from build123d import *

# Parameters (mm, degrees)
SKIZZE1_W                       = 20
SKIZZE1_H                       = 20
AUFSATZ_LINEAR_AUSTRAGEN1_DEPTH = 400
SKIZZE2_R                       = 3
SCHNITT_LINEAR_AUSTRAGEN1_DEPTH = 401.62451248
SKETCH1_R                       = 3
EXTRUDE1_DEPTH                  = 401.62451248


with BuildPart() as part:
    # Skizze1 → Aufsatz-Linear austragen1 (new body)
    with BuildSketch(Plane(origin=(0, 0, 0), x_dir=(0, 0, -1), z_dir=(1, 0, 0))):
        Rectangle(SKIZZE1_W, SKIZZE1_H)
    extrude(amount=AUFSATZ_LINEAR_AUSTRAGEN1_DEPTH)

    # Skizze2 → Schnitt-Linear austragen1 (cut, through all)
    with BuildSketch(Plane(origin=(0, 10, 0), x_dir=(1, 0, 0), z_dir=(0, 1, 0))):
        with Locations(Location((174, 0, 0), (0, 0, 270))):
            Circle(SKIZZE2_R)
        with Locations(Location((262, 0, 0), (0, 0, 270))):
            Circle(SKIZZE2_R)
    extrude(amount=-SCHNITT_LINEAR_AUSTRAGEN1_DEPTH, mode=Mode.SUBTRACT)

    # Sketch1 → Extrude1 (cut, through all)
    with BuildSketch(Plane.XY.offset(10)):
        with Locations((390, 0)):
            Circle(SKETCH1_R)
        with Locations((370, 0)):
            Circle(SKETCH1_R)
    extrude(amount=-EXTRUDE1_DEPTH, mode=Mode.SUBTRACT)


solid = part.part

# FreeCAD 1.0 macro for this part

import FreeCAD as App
import Part
import Sketcher

V = App.Vector


def add_polygon(sketch, points):
    """Adds a closed chain of lines whose ends are joined by coincident constraints."""
    first, n = sketch.GeometryCount, len(points)
    for a, b in zip(points, points[1:] + points[:1]):
        sketch.addGeometry(Part.LineSegment(App.Vector(*a, 0), App.Vector(*b, 0)), False)
    for i in range(n):
        sketch.addConstraint(Sketcher.Constraint("Coincident", first + i, 2, first + (i + 1) % n, 1))

doc = App.newDocument("Part")
body = doc.addObject("PartDesign::Body", "Body")

# Sketch on YZ plane
sketch1 = body.newObject("Sketcher::SketchObject", "Sketch")
sketch1.AttachmentSupport = (doc.getObject("YZ_Plane"), [""])
sketch1.MapMode = "FlatFace"
add_polygon(sketch1, [(10, 10), (-10, 10), (-10, -10), (10, -10)])  # lines 0-3
sketch1.addConstraint([
    Sketcher.Constraint("Horizontal", 0),
    Sketcher.Constraint("Vertical", 1),
    Sketcher.Constraint("Horizontal", 2),
    Sketcher.Constraint("Vertical", 3),
    Sketcher.Constraint("Symmetric", 0, 2, 2, 2, -1, 1),
    Sketcher.Constraint("Equal", 2, 1),
    Sketcher.Constraint("DistanceX", 0, 2, 0, 1, 20.0),
])
pad1 = body.newObject("PartDesign::Pad", "Pad")
pad1.Profile = sketch1
pad1.Length = 400

# Sketch on XZ plane
sketch2 = body.newObject("Sketcher::SketchObject", "Sketch001")
sketch2.AttachmentSupport = (doc.getObject("XZ_Plane"), [""])
sketch2.MapMode = "FlatFace"
sketch2.AttachmentOffset = App.Placement(V(0, 0, -10), App.Rotation())
sketch2.addGeometry([
    Part.Circle(V(174, 0, 0), V(0, 0, 1), 3),
    Part.Circle(V(262, 0, 0), V(0, 0, 1), 3),
], False)
sketch2.addConstraint([
    Sketcher.Constraint("Equal", 0, 1),
    Sketcher.Constraint("PointOnObject", 0, 3, -1),
    Sketcher.Constraint("PointOnObject", 1, 3, -1),
    Sketcher.Constraint("Diameter", 0, 6.0),
    Sketcher.Constraint("DistanceX", -1, 1, 0, 3, 174.0),
    Sketcher.Constraint("DistanceX", -1, 1, 1, 3, 262.0),
])
pocket1 = body.newObject("PartDesign::Pocket", "Pocket")
pocket1.Profile = sketch2
pocket1.Type = "ThroughAll"
pocket1.Reversed = True

# Sketch on XY plane
sketch3 = body.newObject("Sketcher::SketchObject", "Sketch002")
sketch3.AttachmentSupport = (doc.getObject("XY_Plane"), [""])
sketch3.MapMode = "FlatFace"
sketch3.AttachmentOffset = App.Placement(V(0, 0, 10), App.Rotation())
sketch3.addGeometry([
    Part.Circle(V(390, 0, 0), V(0, 0, 1), 3),
    Part.Circle(V(370, 0, 0), V(0, 0, 1), 3),
], False)
sketch3.addConstraint([
    Sketcher.Constraint("Equal", 0, 1),
    Sketcher.Constraint("PointOnObject", 0, 3, -1),
    Sketcher.Constraint("PointOnObject", 1, 3, -1),
    Sketcher.Constraint("Diameter", 0, 6.0),
    Sketcher.Constraint("DistanceX", -1, 1, 0, 3, 390.0),
    Sketcher.Constraint("DistanceX", -1, 1, 1, 3, 370.0),
])
pocket2 = body.newObject("PartDesign::Pocket", "Pocket001")
pocket2.Profile = sketch3
pocket2.Type = "ThroughAll"

doc.recompute()
